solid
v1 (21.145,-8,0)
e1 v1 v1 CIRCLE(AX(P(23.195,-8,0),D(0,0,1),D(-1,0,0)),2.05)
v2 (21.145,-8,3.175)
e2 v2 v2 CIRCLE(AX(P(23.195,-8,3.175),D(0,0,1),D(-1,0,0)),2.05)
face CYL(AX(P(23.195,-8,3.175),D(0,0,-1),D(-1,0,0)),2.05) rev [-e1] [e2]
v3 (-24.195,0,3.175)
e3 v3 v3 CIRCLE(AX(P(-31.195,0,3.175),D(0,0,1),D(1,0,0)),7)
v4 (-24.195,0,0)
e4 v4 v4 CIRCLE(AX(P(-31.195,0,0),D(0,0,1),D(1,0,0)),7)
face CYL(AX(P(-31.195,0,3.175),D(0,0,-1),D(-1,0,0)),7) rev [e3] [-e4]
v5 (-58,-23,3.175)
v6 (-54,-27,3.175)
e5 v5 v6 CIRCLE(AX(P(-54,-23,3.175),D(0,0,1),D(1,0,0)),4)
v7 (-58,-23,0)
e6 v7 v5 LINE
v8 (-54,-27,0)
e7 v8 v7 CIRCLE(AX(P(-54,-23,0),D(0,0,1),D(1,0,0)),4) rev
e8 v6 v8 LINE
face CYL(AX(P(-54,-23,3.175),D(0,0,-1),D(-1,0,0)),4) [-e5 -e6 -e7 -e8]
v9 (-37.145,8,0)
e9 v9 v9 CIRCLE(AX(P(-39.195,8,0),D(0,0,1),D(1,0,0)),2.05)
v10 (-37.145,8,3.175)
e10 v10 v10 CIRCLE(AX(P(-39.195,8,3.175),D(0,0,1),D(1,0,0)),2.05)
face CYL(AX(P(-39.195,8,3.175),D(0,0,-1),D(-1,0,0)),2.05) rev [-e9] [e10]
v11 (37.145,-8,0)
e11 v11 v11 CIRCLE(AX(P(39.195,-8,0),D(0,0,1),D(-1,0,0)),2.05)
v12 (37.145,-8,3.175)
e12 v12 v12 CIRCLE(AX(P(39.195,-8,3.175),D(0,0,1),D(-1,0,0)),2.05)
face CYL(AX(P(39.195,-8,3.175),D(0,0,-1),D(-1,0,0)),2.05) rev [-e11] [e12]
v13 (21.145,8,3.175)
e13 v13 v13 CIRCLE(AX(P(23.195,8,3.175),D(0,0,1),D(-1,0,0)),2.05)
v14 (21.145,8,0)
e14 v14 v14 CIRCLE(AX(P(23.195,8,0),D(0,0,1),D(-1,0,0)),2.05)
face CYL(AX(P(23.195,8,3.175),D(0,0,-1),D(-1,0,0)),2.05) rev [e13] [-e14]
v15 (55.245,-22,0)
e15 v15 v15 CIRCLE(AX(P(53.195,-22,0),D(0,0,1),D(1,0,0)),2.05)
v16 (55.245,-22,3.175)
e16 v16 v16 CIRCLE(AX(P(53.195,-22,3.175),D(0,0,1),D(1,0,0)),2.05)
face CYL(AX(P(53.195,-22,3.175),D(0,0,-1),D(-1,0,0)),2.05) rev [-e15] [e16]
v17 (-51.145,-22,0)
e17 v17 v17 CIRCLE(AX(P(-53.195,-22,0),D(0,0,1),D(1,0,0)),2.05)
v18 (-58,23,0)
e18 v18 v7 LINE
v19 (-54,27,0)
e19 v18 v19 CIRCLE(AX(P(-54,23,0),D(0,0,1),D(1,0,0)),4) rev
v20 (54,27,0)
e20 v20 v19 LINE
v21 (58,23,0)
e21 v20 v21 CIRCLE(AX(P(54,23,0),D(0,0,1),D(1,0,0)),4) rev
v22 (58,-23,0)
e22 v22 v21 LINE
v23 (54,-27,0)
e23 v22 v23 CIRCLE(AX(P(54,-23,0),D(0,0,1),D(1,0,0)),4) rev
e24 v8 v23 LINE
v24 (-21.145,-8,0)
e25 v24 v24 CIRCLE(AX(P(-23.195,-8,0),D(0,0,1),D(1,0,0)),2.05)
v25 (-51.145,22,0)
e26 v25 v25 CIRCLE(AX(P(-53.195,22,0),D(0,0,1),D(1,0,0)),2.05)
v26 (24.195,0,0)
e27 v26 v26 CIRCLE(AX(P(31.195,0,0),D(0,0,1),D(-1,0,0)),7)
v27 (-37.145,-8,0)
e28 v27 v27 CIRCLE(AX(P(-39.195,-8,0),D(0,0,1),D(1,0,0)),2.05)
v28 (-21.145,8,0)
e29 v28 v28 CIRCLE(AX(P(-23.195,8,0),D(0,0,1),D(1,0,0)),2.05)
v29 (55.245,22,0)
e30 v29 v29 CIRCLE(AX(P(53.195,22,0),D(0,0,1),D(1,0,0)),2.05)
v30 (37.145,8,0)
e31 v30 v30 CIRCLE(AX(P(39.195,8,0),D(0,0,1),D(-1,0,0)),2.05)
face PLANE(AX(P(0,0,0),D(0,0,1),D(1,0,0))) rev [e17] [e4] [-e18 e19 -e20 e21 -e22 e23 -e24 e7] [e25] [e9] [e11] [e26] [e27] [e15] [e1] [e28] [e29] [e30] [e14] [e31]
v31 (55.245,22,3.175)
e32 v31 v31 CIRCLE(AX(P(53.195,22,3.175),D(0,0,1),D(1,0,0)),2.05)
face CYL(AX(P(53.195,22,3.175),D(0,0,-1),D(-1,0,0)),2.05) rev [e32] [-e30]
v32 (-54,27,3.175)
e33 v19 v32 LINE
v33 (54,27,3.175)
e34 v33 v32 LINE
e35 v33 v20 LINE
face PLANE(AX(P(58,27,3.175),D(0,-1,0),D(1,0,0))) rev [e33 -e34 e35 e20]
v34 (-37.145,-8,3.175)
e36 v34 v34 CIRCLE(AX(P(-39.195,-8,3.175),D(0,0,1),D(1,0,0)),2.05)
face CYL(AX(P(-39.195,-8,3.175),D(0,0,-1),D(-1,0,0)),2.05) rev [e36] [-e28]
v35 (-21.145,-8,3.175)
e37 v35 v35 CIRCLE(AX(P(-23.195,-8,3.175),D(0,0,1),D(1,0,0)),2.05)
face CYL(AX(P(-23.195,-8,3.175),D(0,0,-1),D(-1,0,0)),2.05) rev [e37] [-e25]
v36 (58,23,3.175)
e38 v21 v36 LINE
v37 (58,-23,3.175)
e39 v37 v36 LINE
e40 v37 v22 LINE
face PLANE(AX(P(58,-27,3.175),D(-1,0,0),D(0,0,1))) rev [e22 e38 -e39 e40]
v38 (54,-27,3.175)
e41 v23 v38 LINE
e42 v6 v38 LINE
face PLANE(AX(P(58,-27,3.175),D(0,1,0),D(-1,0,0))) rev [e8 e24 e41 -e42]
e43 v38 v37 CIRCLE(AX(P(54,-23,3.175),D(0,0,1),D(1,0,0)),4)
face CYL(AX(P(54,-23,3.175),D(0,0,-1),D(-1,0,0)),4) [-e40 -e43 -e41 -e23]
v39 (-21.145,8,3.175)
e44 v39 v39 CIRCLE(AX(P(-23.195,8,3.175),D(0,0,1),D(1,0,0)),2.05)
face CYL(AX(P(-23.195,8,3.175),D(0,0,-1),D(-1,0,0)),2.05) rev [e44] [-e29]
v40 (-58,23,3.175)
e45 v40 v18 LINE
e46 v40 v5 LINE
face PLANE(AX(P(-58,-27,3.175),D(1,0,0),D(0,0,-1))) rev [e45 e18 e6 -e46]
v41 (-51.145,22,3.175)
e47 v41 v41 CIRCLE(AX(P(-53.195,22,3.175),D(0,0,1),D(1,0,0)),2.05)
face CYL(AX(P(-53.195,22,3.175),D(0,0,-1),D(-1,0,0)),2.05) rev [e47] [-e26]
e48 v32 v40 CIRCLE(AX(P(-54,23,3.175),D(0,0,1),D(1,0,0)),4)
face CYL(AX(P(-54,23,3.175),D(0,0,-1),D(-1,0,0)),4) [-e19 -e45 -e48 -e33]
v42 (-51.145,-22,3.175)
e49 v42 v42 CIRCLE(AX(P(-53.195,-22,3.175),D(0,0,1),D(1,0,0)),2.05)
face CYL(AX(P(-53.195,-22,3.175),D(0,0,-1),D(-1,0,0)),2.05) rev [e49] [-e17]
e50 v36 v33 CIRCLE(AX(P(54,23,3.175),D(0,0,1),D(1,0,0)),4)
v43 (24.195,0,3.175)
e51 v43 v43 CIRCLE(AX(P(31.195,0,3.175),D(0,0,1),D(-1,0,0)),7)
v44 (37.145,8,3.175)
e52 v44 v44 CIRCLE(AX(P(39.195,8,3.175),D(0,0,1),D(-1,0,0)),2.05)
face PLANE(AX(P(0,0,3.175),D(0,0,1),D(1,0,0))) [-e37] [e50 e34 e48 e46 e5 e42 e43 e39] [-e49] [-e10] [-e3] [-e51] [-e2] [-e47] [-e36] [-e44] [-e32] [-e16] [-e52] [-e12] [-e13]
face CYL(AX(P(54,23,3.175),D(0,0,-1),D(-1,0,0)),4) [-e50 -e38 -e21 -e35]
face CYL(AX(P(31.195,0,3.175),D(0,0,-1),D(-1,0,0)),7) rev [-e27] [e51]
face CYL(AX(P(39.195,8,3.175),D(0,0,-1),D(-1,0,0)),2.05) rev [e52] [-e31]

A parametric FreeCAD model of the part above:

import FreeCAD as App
import Part
import Sketcher

V = App.Vector


def edges_at(feature, points):
    """Names of the edges that pass closest to the given points."""
    edges = feature.Shape.Edges
    near = lambda p: min(range(len(edges)), key=lambda i: edges[i].distToShape(Part.Vertex(*p))[0])
    return sorted({f"Edge{near(p) + 1}" for p in points})

doc = App.newDocument("Part")
params = doc.addObject("Spreadsheet::Sheet", "Params")
for row, (alias, value) in enumerate([
    ("sketch1_diameter", "14 mm"),
    ("sketch1_diameter2", "4.1 mm"),
    ("sketch1_width", "116 mm"),
    ("sketch1_height", "54 mm"),
    ("pad1_length", "3.175 mm"),
    ("fillet_radius", "4 mm"),
], start=1):
    params.set(f"A{row}", alias)
    params.set(f"B{row}", "=" + value)
    params.setAlias(f"B{row}", alias)

body = doc.addObject("PartDesign::Body", "Body")

# Sketch on XY plane
sketch1 = body.newObject("Sketcher::SketchObject", "Sketch")
sketch1.AttachmentSupport = (doc.getObject("XY_Plane"), [""])
sketch1.MapMode = "FlatFace"
sketch1.addGeometry(Part.LineSegment(V(-58, 27, 0), V(-58, -27, 0)), False)
sketch1.addGeometry(Part.LineSegment(V(-58, -27, 0), V(58, -27, 0)), False)
sketch1.addGeometry(Part.LineSegment(V(58, -27, 0), V(58, 27, 0)), False)
sketch1.addGeometry(Part.LineSegment(V(58, 27, 0), V(-58, 27, 0)), False)
sketch1.addGeometry(Part.Circle(V(-53.2, -22, 0), V(0, 0, 1), 2), False)
sketch1.addGeometry(Part.Circle(V(-39.2, -8, 0), V(0, 0, 1), 2), False)
sketch1.addGeometry(Part.Circle(V(-31.2, 0, 0), V(0, 0, 1), 7), False)
sketch1.addGeometry(Part.Circle(V(-23.2, -8, 0), V(0, 0, 1), 2), False)
sketch1.addGeometry(Part.Circle(V(53.2, -22, 0), V(0, 0, 1), 2), False)
sketch1.addGeometry(Part.Circle(V(23.2, -8, 0), V(0, 0, 1), 2), False)
sketch1.addGeometry(Part.Circle(V(39.2, -8, 0), V(0, 0, 1), 2), False)
sketch1.addGeometry(Part.Circle(V(31.2, 0, 0), V(0, 0, 1), 7), False)
sketch1.addGeometry(Part.Circle(V(-39.2, 8, 0), V(0, 0, 1), 2), False)
sketch1.addGeometry(Part.Circle(V(-23.2, 8, 0), V(0, 0, 1), 2), False)
sketch1.addGeometry(Part.Circle(V(-53.2, 22, 0), V(0, 0, 1), 2), False)
sketch1.addGeometry(Part.Circle(V(23.2, 8, 0), V(0, 0, 1), 2), False)
sketch1.addGeometry(Part.Circle(V(39.2, 8, 0), V(0, 0, 1), 2), False)
sketch1.addGeometry(Part.Circle(V(53.2, 22, 0), V(0, 0, 1), 2), False)
sketch1.addConstraint(Sketcher.Constraint("Coincident", 0, 2, 1, 1))
sketch1.addConstraint(Sketcher.Constraint("Coincident", 1, 2, 2, 1))
sketch1.addConstraint(Sketcher.Constraint("Coincident", 2, 2, 3, 1))
sketch1.addConstraint(Sketcher.Constraint("Coincident", 3, 2, 0, 1))
sketch1.addConstraint(Sketcher.Constraint("Vertical", 0))
sketch1.addConstraint(Sketcher.Constraint("Horizontal", 1))
sketch1.addConstraint(Sketcher.Constraint("Vertical", 2))
sketch1.addConstraint(Sketcher.Constraint("Horizontal", 3))
sketch1.addConstraint(Sketcher.Constraint("Equal", 4, 5))
sketch1.addConstraint(Sketcher.Constraint("Equal", 5, 7))
sketch1.addConstraint(Sketcher.Constraint("Equal", 7, 8))
sketch1.addConstraint(Sketcher.Constraint("Equal", 8, 9))
sketch1.addConstraint(Sketcher.Constraint("Equal", 9, 10))
sketch1.addConstraint(Sketcher.Constraint("Equal", 6, 11))
sketch1.addConstraint(Sketcher.Constraint("Equal", 10, 12))
sketch1.addConstraint(Sketcher.Constraint("Equal", 12, 13))
sketch1.addConstraint(Sketcher.Constraint("Equal", 13, 14))
sketch1.addConstraint(Sketcher.Constraint("Equal", 14, 15))
sketch1.addConstraint(Sketcher.Constraint("Equal", 15, 16))
sketch1.addConstraint(Sketcher.Constraint("Equal", 16, 17))
sketch1.addConstraint(Sketcher.Constraint("Symmetric", 6, 3, 11, 3, -1, 1))
sketch1.addConstraint(Sketcher.Constraint("Symmetric", 10, 3, 12, 3, -1, 1))
sketch1.addConstraint(Sketcher.Constraint("Symmetric", 9, 3, 13, 3, -1, 1))
sketch1.addConstraint(Sketcher.Constraint("Symmetric", 8, 3, 14, 3, -1, 1))
sketch1.addConstraint(Sketcher.Constraint("Symmetric", 7, 3, 15, 3, -1, 1))
sketch1.addConstraint(Sketcher.Constraint("Symmetric", 5, 3, 16, 3, -1, 1))
sketch1.addConstraint(Sketcher.Constraint("Symmetric", 4, 3, 17, 3, -1, 1))
sketch1.addConstraint(Sketcher.Constraint("Symmetric", 0, 2, 2, 2, -1, 1))
sketch1.addConstraint(Sketcher.Constraint("Symmetric", 4, 3, 8, 3, -2))
sketch1.addConstraint(Sketcher.Constraint("Symmetric", 7, 3, 9, 3, -2))
sketch1.addConstraint(Sketcher.Constraint("Symmetric", 5, 3, 10, 3, -2))
sketch1.addConstraint(Sketcher.Constraint("PointOnObject", 6, 3, -1))
sketch1.addConstraint(Sketcher.Constraint("Horizontal", 5, 3, 7, 3))
sketch1.addConstraint(Sketcher.Constraint("Diameter", 6, 14.0))
sketch1.addConstraint(Sketcher.Constraint("Diameter", 4, 4.1))
sketch1.addConstraint(Sketcher.Constraint("DistanceX", 1, 1, 1, 2, 116.0))
sketch1.addConstraint(Sketcher.Constraint("DistanceY", 0, 2, 0, 1, 54.0))
sketch1.addConstraint(Sketcher.Constraint("DistanceY", 4, 3, -1, 1, 22.0))
sketch1.addConstraint(Sketcher.Constraint("DistanceY", 5, 3, -1, 1, 8.0))
sketch1.addConstraint(Sketcher.Constraint("DistanceX", 4, 3, 5, 3, 14.0))
sketch1.addConstraint(Sketcher.Constraint("DistanceX", 5, 3, 6, 3, 8.0))
sketch1.addConstraint(Sketcher.Constraint("DistanceX", 6, 3, 7, 3, 8.0))
sketch1.addConstraint(Sketcher.Constraint("DistanceX", 7, 3, 8, 3, 76.39))
sketch1.setExpression("Constraints[33]", "Params.sketch1_diameter")
sketch1.setExpression("Constraints[34]", "Params.sketch1_diameter2")
sketch1.setExpression("Constraints[35]", "Params.sketch1_width")
sketch1.setExpression("Constraints[36]", "Params.sketch1_height")
pad1 = body.newObject("PartDesign::Pad", "Pad")
pad1.Profile = sketch1
pad1.setExpression("Length", "Params.pad1_length")
doc.recompute()

fillet = body.newObject("PartDesign::Fillet", "Fillet")
fillet.Base = (pad1, edges_at(pad1, [
    (-58, 27, 1.587),
    (58, 27, 1.587),
    (58, -27, 1.587),
    (-58, -27, 1.587),
]))
fillet.setExpression("Radius", "Params.fillet_radius")

doc.recompute()
